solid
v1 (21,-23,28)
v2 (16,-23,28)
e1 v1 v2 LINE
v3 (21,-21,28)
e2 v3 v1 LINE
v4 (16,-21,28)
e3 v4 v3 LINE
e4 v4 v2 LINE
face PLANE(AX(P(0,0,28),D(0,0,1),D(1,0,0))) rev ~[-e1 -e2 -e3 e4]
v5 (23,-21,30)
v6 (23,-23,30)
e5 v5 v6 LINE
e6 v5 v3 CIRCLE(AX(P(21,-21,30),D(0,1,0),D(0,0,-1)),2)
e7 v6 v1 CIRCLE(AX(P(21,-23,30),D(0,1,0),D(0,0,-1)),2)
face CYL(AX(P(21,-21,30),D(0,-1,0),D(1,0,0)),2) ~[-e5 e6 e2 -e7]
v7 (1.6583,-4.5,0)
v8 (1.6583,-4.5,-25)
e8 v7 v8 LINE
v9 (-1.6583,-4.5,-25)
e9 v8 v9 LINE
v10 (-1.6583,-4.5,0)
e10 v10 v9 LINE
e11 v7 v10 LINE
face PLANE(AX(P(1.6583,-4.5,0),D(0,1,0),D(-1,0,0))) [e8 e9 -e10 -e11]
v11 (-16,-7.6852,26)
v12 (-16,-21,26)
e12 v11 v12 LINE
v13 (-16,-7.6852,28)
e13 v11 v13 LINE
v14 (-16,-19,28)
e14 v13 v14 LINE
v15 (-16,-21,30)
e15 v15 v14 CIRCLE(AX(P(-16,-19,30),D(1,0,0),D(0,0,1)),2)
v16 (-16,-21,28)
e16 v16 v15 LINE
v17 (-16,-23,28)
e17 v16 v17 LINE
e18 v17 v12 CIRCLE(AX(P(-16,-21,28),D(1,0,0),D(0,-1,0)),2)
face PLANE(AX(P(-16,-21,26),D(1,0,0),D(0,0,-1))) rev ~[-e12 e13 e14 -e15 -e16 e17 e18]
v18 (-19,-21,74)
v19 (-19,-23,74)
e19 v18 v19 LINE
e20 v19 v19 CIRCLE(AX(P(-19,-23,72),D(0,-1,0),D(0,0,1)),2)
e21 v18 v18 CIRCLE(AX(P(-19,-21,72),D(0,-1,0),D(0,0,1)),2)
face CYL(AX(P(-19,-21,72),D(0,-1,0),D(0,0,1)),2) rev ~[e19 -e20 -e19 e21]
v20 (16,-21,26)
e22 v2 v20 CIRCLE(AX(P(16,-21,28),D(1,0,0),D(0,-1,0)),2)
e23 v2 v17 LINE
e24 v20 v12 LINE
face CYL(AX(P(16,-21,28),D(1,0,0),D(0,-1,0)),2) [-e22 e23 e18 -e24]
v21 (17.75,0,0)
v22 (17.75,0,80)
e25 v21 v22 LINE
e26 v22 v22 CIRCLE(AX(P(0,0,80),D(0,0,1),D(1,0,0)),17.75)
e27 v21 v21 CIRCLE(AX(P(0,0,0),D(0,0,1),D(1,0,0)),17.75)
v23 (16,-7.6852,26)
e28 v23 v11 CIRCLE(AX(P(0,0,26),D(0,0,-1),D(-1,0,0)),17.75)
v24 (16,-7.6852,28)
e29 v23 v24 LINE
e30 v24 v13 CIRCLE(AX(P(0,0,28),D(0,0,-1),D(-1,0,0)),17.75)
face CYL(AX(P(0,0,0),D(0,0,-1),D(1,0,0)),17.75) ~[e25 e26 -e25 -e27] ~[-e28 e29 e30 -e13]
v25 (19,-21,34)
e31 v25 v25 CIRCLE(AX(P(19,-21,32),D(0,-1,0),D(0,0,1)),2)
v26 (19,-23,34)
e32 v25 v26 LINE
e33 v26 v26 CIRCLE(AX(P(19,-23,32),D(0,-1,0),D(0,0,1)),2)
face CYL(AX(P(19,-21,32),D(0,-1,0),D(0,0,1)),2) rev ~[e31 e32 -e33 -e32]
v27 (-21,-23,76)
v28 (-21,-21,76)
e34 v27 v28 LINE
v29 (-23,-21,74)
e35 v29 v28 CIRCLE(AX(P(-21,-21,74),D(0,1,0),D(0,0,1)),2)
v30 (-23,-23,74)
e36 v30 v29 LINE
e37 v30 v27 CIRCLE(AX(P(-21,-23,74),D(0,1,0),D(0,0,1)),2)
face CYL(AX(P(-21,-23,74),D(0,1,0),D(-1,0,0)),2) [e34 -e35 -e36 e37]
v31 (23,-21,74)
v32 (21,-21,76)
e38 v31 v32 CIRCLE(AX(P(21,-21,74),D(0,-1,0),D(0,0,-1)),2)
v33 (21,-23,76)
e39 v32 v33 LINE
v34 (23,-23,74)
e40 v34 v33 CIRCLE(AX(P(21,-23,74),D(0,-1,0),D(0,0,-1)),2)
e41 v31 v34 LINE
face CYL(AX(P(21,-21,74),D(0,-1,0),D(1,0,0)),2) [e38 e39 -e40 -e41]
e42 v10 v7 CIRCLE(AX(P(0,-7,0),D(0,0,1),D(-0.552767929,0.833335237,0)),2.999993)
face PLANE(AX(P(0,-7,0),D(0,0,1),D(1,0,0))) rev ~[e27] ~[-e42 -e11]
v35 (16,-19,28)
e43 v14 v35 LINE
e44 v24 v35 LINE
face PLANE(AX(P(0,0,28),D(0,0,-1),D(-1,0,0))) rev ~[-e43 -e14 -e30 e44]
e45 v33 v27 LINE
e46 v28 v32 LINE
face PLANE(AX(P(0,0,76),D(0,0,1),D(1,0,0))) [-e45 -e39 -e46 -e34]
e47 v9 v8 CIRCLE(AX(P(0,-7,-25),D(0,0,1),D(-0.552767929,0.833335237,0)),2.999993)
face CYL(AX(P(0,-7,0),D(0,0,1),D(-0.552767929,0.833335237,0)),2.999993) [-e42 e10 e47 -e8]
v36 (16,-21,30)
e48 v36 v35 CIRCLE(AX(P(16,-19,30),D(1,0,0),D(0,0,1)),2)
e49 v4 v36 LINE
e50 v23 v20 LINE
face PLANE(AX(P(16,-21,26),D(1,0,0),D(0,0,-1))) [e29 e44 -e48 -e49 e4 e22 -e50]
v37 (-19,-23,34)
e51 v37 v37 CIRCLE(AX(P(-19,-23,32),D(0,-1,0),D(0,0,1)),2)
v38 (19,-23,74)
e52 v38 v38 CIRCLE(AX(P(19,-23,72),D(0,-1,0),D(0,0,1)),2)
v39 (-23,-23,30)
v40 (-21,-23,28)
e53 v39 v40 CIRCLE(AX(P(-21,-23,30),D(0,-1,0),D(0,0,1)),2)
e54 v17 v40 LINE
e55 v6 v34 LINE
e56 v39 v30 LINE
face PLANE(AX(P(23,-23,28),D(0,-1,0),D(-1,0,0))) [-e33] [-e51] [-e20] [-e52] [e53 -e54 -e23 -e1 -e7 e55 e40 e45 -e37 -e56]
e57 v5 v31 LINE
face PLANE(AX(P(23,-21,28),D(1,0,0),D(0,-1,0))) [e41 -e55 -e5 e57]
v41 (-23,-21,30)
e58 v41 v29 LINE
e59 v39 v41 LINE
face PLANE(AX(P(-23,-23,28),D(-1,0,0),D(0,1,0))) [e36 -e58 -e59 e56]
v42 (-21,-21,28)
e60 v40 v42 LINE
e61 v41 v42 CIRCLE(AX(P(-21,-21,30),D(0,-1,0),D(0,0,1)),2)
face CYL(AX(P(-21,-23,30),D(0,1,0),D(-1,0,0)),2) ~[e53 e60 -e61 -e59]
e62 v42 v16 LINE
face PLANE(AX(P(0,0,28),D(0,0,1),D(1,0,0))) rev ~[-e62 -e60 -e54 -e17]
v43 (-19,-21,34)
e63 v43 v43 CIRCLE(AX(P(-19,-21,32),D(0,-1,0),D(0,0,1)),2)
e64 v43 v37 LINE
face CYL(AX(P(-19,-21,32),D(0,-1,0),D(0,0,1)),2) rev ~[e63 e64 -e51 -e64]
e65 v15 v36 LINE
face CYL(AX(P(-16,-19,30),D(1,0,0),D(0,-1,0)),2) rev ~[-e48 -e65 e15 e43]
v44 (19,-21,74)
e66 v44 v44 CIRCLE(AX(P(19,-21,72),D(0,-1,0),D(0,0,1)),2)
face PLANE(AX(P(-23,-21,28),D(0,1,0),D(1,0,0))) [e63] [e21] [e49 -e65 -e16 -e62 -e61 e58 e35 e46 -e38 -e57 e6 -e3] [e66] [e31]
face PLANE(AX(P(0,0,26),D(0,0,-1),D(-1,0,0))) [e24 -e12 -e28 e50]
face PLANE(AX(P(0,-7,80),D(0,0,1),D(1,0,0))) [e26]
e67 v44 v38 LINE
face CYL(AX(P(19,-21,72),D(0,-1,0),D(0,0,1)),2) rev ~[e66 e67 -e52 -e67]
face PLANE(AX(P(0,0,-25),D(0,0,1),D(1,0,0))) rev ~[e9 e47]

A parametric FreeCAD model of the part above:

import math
import FreeCAD as App
import Part
import Sketcher
from FreeCAD import Vector


def edges_at(feature, points):
    """Names of the edges that pass closest to the given points."""
    edges = feature.Shape.Edges
    near = lambda p: min(range(len(edges)), key=lambda i: edges[i].distToShape(Part.Vertex(*p))[0])
    return sorted({f"Edge{near(p) + 1}" for p in points})


def add_polygon(sketch, points):
    """Adds a closed chain of lines whose ends are joined by coincident constraints."""
    first, n = sketch.GeometryCount, len(points)
    for a, b in zip(points, points[1:] + points[:1]):
        sketch.addGeometry(Part.LineSegment(App.Vector(*a, 0), App.Vector(*b, 0)), False)
    for i in range(n):
        sketch.addConstraint(Sketcher.Constraint("Coincident", first + i, 2, first + (i + 1) % n, 1))

doc = App.newDocument("Part")
params = doc.addObject("Spreadsheet::Sheet", "Params")
for row, (alias, value) in enumerate([
    ("sketch1_radius", "3 mm"),
    ("pad1_length", "25 mm"),
    ("sketch2_diameter", "35.5 mm"),
    ("pad2_length", "80 mm"),
    ("sketch3_radius", "17.75 mm"),
    ("pad3_length", "2 mm"),
    ("sketch4_width", "46 mm"),
    ("sketch4_height", "2 mm"),
    ("pad4_length", "48 mm"),
    ("fillet_radius", "2 mm"),
    ("sketch5_radius", "2 mm"),
    ("pad5_length", "32 mm"),
    ("fillet2_radius", "2 mm"),
    ("sketch6_diameter", "4 mm"),
    ("hole_diameter", "4 mm"),
], start=1):
    params.set(f"A{row}", alias)
    params.set(f"B{row}", "=" + value)
    params.setAlias(f"B{row}", alias)

body = doc.addObject("PartDesign::Body", "Body")
body.AllowCompound = True

# Sketch on XY plane
sketch1 = body.newObject("Sketcher::SketchObject", "Sketch")
sketch1.AttachmentSupport = (doc.getObject("XY_Plane"), [""])
sketch1.MapMode = "FlatFace"
sketch1.addGeometry(Part.LineSegment(Vector(1.7, -4.5, 0), Vector(-1.7, -4.5, 0)), False)
sketch1.addGeometry(Part.ArcOfCircle(Part.Circle(Vector(0, -7, 0), Vector(0, 0, 1), 3), math.radians(124), math.radians(416)), False)
sketch1.addConstraint(Sketcher.Constraint("Coincident", 0, 1, 1, 2))
sketch1.addConstraint(Sketcher.Constraint("Coincident", 1, 1, 0, 2))
sketch1.addConstraint(Sketcher.Constraint("Horizontal", 0))
sketch1.addConstraint(Sketcher.Constraint("PointOnObject", 1, 3, -2))
sketch1.addConstraint(Sketcher.Constraint("Radius", 1, 3.0))
sketch1.addConstraint(Sketcher.Constraint("DistanceY", 1, 3, -1, 1, 7.0))
sketch1.addConstraint(Sketcher.Constraint("DistanceY", 0, 1, -1, 1, 4.5))
sketch1.setExpression("Constraints[4]", "Params.sketch1_radius")
pad1 = body.newObject("PartDesign::Pad", "Pad")
pad1.Profile = sketch1
pad1.setExpression("Length", "Params.pad1_length")
pad1.Reversed = True

# Sketch on XY plane
sketch2 = body.newObject("Sketcher::SketchObject", "Sketch001")
sketch2.AttachmentSupport = (doc.getObject("XY_Plane"), [""])
sketch2.MapMode = "FlatFace"
sketch2.addGeometry(Part.Circle(Vector(0, 0, 0), Vector(0, 0, 1), 18), False)
sketch2.addConstraint(Sketcher.Constraint("Coincident", 0, 3, -1, 1))
sketch2.addConstraint(Sketcher.Constraint("Diameter", 0, 35.5))
sketch2.setExpression("Constraints[1]", "Params.sketch2_diameter")
pad2 = body.newObject("PartDesign::Pad", "Pad001")
pad2.Profile = sketch2
pad2.setExpression("Length", "Params.pad2_length")

# Sketch on XY plane
sketch3 = body.newObject("Sketcher::SketchObject", "Sketch002")
sketch3.AttachmentSupport = (doc.getObject("XY_Plane"), [""])
sketch3.MapMode = "FlatFace"
sketch3.AttachmentOffset = App.Placement(Vector(0, 0, 26), App.Rotation())
sketch3.addGeometry(Part.ArcOfCircle(Part.Circle(Vector(0, 0, 0), Vector(0, 0, 1), 18), math.radians(-154), math.radians(-26)), False)
sketch3.addGeometry(Part.LineSegment(Vector(16, -8, 0), Vector(16, -21, 0)), False)
sketch3.addGeometry(Part.LineSegment(Vector(16, -21, 0), Vector(-16, -21, 0)), False)
sketch3.addGeometry(Part.LineSegment(Vector(-16, -21, 0), Vector(-16, -8, 0)), False)
sketch3.addConstraint(Sketcher.Constraint("Coincident", 0, 2, 1, 1))
sketch3.addConstraint(Sketcher.Constraint("Coincident", 1, 2, 2, 1))
sketch3.addConstraint(Sketcher.Constraint("Coincident", 2, 2, 3, 1))
sketch3.addConstraint(Sketcher.Constraint("Coincident", 3, 2, 0, 1))
sketch3.addConstraint(Sketcher.Constraint("Vertical", 1))
sketch3.addConstraint(Sketcher.Constraint("Horizontal", 2))
sketch3.addConstraint(Sketcher.Constraint("Vertical", 3))
sketch3.addConstraint(Sketcher.Constraint("Coincident", 0, 3, -1, 1))
sketch3.addConstraint(Sketcher.Constraint("Horizontal", 0, 2, 3, 2))
sketch3.addConstraint(Sketcher.Constraint("DistanceX", -1, 1, 0, 2, 16.0))
sketch3.addConstraint(Sketcher.Constraint("Radius", 0, 17.75))
sketch3.addConstraint(Sketcher.Constraint("DistanceY", 1, 2, -1, 1, 21.0))
sketch3.setExpression("Constraints[10]", "Params.sketch3_radius")
pad3 = body.newObject("PartDesign::Pad", "Pad002")
pad3.Profile = sketch3
pad3.setExpression("Length", "Params.pad3_length")

# Sketch on XY plane
sketch4 = body.newObject("Sketcher::SketchObject", "Sketch003")
sketch4.AttachmentSupport = (doc.getObject("XY_Plane"), [""])
sketch4.MapMode = "FlatFace"
sketch4.AttachmentOffset = App.Placement(Vector(0, 0, 28), App.Rotation())
add_polygon(sketch4, [(23, -21), (-23, -21), (-23, -23), (23, -23)])  # lines 0-3
sketch4.addConstraint(Sketcher.Constraint("Horizontal", 0))
sketch4.addConstraint(Sketcher.Constraint("Vertical", 1))
sketch4.addConstraint(Sketcher.Constraint("Horizontal", 2))
sketch4.addConstraint(Sketcher.Constraint("Vertical", 3))
sketch4.addConstraint(Sketcher.Constraint("DistanceX", 0, 2, 0, 1, 46.0))
sketch4.addConstraint(Sketcher.Constraint("DistanceY", 1, 2, 1, 1, 2.0))
sketch4.addConstraint(Sketcher.Constraint("DistanceX", 0, 2, -1, 1, 23.0))
sketch4.addConstraint(Sketcher.Constraint("DistanceY", 0, 2, -1, 1, 21.0))
sketch4.setExpression("Constraints[8]", "Params.sketch4_width")
sketch4.setExpression("Constraints[9]", "Params.sketch4_height")
pad4 = body.newObject("PartDesign::Pad", "Pad003")
pad4.Profile = sketch4
pad4.setExpression("Length", "Params.pad4_length")
doc.recompute()

fillet = body.newObject("PartDesign::Fillet", "Fillet")
fillet.Base = (pad4, edges_at(pad4, [
    (-23, -22, 28),
    (-23, -22, 76),
    (23, -22, 76),
    (23, -22, 28),
]))
fillet.setExpression("Radius", "Params.fillet_radius")

# Sketch on YZ plane
sketch5 = body.newObject("Sketcher::SketchObject", "Sketch004")
sketch5.AttachmentSupport = (doc.getObject("YZ_Plane"), [""])
sketch5.MapMode = "FlatFace"
sketch5.AttachmentOffset = App.Placement(Vector(0, 0, 16), App.Rotation())
sketch5.addGeometry(Part.LineSegment(Vector(-21, 28, 0), Vector(-23, 28, 0)), False)
sketch5.addGeometry(Part.ArcOfCircle(Part.Circle(Vector(-21, 28, 0), Vector(0, 0, 1), 2), math.radians(180), math.radians(270)), False)
sketch5.addGeometry(Part.LineSegment(Vector(-21, 26, 0), Vector(-21, 28, 0)), False)
sketch5.addConstraint(Sketcher.Constraint("Coincident", 0, 2, 1, 1))
sketch5.addConstraint(Sketcher.Constraint("Coincident", 1, 2, 2, 1))
sketch5.addConstraint(Sketcher.Constraint("Coincident", 2, 2, 0, 1))
sketch5.addConstraint(Sketcher.Constraint("Horizontal", 0))
sketch5.addConstraint(Sketcher.Constraint("Vertical", 2))
sketch5.addConstraint(Sketcher.Constraint("Coincident", 2, 2, 1, 3))
sketch5.addConstraint(Sketcher.Constraint("Radius", 1, 2.0))
sketch5.addConstraint(Sketcher.Constraint("DistanceX", 1, 3, -1, 1, 21.0))
sketch5.addConstraint(Sketcher.Constraint("DistanceY", -1, 1, 1, 3, 28.0))
sketch5.setExpression("Constraints[6]", "Params.sketch5_radius")
pad5 = body.newObject("PartDesign::Pad", "Pad004")
pad5.Profile = sketch5
pad5.setExpression("Length", "Params.pad5_length")
pad5.Reversed = True
doc.recompute()

fillet2 = body.newObject("PartDesign::Fillet", "Fillet001")
fillet2.Base = (pad5, edges_at(pad5, [(0, -21, 28)]))
fillet2.setExpression("Radius", "Params.fillet2_radius")

# Sketch on XZ plane
sketch6 = body.newObject("Sketcher::SketchObject", "Sketch005")
sketch6.AttachmentSupport = (doc.getObject("XZ_Plane"), [""])
sketch6.MapMode = "FlatFace"
sketch6.AttachmentOffset = App.Placement(Vector(0, 0, 21), App.Rotation())
sketch6.addGeometry(Part.Circle(Vector(-19, 32, 0), Vector(0, 0, 1), 2), False)
sketch6.addGeometry(Part.Circle(Vector(-19, 72, 0), Vector(0, 0, 1), 2), False)
sketch6.addGeometry(Part.Circle(Vector(19, 72, 0), Vector(0, 0, 1), 2), False)
sketch6.addGeometry(Part.Circle(Vector(19, 32, 0), Vector(0, 0, 1), 2), False)
sketch6.addConstraint(Sketcher.Constraint("Equal", 0, 1))
sketch6.addConstraint(Sketcher.Constraint("Equal", 1, 2))
sketch6.addConstraint(Sketcher.Constraint("Equal", 2, 3))
sketch6.addConstraint(Sketcher.Constraint("Symmetric", 1, 3, 2, 3, -2))
sketch6.addConstraint(Sketcher.Constraint("Symmetric", 0, 3, 3, 3, -2))
sketch6.addConstraint(Sketcher.Constraint("Vertical", 0, 3, 1, 3))
sketch6.addConstraint(Sketcher.Constraint("Diameter", 0, 4.0))
sketch6.addConstraint(Sketcher.Constraint("DistanceX", 0, 3, -1, 1, 19.0))
sketch6.addConstraint(Sketcher.Constraint("DistanceY", -1, 1, 0, 3, 32.0))
sketch6.addConstraint(Sketcher.Constraint("DistanceY", -1, 1, 1, 3, 72.0))
sketch6.setExpression("Constraints[6]", "Params.sketch6_diameter")
doc.recompute()
hole = body.newObject("PartDesign::Hole", "Hole")
hole.Profile = sketch6
hole.ThreadType = "None"
hole.setExpression("Diameter", "Params.hole_diameter")
hole.DepthType = "ThroughAll"
hole.Reversed = True

doc.recompute()
